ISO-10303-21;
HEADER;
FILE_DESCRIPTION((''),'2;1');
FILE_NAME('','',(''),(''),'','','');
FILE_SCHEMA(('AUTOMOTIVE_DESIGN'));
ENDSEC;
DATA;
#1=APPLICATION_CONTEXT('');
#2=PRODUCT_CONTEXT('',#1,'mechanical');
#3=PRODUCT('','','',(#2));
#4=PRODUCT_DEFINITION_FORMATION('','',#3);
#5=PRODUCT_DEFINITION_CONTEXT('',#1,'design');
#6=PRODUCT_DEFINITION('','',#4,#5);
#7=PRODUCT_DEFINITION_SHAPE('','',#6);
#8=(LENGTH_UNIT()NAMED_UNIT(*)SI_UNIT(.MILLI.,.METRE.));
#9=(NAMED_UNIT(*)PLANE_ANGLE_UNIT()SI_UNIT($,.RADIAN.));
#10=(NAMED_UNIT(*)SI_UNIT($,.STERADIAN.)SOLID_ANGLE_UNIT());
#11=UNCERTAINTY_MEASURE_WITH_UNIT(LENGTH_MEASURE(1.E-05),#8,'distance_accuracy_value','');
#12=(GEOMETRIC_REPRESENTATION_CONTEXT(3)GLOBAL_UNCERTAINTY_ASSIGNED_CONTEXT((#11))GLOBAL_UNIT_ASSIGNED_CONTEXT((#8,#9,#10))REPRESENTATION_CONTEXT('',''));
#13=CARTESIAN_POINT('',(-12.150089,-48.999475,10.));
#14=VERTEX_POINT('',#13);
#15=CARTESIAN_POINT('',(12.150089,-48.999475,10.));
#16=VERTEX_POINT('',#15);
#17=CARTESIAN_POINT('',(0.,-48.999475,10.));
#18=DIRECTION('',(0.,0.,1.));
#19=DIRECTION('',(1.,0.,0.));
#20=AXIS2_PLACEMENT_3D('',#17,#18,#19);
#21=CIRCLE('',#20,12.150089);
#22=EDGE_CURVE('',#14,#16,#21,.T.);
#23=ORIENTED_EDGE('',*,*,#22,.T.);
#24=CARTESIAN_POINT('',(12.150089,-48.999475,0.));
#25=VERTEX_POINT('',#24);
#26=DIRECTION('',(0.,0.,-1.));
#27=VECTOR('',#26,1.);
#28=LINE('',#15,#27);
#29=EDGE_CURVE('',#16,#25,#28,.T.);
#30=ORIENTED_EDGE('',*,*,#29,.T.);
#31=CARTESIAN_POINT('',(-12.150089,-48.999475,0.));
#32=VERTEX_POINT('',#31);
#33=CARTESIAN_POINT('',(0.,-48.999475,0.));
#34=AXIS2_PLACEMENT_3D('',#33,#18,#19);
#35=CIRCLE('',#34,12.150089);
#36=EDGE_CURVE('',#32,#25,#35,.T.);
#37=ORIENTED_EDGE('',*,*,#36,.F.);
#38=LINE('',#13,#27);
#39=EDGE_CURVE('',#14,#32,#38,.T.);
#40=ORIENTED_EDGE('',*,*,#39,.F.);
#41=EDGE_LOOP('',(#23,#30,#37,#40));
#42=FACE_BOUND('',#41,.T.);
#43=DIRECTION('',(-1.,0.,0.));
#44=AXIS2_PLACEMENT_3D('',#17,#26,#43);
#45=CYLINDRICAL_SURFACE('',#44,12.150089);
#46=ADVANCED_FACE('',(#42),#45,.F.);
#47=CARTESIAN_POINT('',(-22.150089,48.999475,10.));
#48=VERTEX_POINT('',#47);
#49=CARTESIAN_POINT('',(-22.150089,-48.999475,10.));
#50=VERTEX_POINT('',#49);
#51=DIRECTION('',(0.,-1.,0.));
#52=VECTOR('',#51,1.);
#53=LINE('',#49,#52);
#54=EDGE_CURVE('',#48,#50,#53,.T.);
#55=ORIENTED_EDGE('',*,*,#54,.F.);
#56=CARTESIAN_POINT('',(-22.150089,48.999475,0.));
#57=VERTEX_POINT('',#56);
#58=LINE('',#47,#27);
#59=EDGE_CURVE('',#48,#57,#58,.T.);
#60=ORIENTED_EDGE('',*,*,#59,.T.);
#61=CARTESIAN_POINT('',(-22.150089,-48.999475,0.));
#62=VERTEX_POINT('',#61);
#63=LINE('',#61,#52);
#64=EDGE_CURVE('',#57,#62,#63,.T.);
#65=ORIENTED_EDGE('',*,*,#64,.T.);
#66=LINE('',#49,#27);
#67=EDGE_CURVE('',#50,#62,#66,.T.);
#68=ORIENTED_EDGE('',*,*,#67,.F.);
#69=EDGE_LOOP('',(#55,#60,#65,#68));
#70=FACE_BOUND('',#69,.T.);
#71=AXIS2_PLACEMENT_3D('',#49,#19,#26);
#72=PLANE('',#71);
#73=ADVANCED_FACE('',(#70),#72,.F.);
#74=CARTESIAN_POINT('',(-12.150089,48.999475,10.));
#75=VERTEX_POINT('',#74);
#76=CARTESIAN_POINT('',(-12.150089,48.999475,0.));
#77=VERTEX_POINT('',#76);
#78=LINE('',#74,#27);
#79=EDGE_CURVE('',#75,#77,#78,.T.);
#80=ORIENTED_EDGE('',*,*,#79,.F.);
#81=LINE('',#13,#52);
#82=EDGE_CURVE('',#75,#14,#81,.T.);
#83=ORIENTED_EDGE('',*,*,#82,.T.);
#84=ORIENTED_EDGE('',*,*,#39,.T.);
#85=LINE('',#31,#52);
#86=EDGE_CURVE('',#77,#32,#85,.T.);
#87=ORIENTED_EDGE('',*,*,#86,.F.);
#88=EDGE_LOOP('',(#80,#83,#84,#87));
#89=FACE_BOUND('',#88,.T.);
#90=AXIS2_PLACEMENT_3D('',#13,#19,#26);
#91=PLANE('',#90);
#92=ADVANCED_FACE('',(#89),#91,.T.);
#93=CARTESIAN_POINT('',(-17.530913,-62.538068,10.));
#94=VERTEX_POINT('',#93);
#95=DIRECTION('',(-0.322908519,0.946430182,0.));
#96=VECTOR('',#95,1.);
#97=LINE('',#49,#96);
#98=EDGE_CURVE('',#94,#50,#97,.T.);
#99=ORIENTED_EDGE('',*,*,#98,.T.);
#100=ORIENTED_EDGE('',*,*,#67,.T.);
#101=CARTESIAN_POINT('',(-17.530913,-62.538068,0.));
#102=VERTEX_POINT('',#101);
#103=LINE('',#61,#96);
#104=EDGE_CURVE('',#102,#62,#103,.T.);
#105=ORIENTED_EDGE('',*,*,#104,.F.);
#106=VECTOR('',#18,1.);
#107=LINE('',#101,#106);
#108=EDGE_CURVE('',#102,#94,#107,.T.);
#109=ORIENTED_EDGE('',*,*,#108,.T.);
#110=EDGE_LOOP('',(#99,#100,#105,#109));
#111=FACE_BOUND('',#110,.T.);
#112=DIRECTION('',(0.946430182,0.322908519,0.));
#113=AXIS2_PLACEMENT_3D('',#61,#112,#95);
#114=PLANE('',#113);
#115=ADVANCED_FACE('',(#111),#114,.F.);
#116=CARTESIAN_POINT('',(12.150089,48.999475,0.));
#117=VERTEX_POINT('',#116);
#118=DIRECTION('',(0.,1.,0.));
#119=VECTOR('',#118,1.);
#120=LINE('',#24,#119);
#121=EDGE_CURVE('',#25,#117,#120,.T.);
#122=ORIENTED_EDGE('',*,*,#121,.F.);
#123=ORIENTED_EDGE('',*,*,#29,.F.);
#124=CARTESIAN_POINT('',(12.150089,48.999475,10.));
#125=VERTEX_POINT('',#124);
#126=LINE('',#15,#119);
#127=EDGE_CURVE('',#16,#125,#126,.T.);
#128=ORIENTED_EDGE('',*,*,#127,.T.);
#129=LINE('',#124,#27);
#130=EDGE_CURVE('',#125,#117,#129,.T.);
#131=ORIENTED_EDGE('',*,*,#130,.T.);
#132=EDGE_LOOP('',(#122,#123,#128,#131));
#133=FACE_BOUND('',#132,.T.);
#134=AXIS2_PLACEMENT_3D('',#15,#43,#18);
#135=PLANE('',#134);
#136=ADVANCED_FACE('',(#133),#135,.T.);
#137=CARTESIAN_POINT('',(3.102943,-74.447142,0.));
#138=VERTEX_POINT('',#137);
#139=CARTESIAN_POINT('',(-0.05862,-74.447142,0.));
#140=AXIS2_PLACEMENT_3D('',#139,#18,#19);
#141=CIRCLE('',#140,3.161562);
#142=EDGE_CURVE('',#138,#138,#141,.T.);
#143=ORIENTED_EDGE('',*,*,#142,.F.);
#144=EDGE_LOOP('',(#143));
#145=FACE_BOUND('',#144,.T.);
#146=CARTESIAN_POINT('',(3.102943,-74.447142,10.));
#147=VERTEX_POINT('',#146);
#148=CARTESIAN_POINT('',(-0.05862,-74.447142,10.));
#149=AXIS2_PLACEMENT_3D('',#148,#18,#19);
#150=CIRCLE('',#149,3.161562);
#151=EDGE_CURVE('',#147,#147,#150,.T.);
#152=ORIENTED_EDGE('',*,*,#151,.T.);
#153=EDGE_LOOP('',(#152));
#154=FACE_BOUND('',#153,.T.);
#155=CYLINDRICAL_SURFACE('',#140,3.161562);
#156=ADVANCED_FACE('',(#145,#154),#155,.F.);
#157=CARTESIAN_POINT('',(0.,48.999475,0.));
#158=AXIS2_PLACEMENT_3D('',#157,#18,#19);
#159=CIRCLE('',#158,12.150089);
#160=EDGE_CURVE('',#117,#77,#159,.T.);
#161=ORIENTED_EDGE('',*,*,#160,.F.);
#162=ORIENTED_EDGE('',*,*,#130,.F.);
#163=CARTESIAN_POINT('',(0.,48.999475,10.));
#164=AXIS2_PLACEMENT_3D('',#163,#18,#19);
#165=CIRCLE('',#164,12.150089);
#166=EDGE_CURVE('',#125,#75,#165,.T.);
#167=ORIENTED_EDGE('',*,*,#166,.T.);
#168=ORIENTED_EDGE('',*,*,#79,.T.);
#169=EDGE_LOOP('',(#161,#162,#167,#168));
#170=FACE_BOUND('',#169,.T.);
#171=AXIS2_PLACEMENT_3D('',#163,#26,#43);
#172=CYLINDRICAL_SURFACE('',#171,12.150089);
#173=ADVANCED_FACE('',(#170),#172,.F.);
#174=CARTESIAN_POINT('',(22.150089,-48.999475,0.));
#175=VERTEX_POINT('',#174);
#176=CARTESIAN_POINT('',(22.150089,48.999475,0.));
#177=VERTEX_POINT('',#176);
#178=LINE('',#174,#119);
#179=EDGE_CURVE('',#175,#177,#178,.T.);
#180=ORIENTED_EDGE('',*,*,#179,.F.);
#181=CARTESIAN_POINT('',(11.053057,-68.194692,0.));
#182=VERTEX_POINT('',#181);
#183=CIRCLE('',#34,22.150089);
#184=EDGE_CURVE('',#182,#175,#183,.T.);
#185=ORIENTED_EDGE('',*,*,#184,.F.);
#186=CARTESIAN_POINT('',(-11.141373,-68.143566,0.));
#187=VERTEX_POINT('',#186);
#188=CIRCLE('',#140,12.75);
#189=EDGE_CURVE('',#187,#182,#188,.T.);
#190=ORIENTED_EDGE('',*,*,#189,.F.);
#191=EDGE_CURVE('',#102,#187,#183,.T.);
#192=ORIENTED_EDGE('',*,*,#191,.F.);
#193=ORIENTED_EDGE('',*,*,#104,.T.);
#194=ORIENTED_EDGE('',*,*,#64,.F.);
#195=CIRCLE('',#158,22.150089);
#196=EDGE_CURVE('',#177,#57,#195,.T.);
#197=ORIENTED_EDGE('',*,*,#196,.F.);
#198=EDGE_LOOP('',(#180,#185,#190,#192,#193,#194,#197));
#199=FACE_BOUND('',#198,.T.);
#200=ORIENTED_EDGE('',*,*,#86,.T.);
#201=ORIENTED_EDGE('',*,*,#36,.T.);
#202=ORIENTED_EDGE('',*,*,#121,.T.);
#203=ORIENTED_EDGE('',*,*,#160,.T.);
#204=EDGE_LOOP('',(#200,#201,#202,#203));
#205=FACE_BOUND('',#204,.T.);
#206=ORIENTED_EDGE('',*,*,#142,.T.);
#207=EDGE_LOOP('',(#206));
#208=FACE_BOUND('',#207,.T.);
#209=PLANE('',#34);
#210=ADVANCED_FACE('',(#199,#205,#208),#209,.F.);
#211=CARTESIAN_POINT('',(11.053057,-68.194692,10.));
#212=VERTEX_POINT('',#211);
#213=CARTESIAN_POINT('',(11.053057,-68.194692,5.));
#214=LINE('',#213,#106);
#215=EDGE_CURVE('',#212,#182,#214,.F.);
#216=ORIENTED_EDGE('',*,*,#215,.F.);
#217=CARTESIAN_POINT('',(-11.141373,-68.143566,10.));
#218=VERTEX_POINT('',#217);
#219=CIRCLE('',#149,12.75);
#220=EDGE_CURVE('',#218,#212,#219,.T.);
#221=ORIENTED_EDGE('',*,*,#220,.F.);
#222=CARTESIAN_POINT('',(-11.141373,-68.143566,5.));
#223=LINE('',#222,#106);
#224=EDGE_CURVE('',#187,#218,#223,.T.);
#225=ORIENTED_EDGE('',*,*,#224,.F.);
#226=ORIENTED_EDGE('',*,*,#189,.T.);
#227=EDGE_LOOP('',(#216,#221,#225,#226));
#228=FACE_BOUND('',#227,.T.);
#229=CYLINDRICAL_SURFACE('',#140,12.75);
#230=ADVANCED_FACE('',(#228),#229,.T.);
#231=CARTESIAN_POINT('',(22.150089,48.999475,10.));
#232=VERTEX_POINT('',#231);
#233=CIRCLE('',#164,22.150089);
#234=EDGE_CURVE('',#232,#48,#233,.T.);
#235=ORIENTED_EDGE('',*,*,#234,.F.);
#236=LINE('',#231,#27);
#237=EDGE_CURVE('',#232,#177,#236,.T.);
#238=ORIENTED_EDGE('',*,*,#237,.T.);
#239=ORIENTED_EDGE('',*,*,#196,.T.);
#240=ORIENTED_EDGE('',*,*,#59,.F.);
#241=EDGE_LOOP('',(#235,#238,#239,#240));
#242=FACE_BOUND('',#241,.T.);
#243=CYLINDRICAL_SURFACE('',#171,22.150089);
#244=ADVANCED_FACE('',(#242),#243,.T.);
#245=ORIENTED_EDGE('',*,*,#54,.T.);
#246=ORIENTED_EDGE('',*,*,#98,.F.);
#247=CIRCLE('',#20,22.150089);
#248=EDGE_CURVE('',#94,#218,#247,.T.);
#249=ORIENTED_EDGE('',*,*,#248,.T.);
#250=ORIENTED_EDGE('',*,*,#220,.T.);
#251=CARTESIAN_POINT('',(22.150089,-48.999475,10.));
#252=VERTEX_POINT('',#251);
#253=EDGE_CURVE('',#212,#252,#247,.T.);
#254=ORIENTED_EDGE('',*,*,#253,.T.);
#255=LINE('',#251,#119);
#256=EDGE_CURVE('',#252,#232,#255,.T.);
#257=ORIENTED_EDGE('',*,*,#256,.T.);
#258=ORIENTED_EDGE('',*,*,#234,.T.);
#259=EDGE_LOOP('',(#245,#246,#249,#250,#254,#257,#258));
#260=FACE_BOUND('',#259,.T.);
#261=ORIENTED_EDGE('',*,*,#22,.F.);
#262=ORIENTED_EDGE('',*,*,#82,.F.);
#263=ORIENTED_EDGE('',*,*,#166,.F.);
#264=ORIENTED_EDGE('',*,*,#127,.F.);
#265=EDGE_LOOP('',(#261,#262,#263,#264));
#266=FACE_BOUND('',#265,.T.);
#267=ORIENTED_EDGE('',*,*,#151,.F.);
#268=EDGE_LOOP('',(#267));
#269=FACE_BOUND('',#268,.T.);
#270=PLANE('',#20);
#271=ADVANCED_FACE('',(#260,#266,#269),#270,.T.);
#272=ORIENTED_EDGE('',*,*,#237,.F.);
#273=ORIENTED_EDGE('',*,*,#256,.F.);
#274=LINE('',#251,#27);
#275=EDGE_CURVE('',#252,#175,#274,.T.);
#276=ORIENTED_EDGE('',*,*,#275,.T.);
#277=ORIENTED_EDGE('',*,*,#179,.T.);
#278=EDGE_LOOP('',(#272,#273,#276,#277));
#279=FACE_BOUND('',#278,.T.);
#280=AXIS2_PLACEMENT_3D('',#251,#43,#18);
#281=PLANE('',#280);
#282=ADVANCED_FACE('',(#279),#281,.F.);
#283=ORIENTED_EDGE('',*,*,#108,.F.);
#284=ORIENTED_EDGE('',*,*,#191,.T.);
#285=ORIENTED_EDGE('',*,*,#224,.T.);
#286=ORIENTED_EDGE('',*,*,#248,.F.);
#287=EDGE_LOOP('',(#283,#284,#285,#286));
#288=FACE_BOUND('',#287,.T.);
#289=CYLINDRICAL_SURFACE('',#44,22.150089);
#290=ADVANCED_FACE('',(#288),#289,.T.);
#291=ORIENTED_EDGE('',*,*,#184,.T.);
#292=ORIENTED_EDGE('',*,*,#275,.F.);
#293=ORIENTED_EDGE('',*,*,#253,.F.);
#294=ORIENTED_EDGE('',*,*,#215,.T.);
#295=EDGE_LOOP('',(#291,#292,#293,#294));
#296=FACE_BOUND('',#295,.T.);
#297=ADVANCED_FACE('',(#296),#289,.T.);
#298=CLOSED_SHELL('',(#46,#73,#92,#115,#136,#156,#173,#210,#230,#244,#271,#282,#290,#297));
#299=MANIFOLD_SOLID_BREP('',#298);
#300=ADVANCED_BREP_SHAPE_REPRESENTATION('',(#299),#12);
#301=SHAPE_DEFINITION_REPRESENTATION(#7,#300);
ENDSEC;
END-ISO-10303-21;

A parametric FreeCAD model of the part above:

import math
import FreeCAD as App
import Part
import Sketcher

V = App.Vector
Q = App.Units.Quantity

doc = App.newDocument("Part")
body = doc.addObject("PartDesign::Body", "Body")

# Sketch on XY plane
sketch1 = body.newObject("Sketcher::SketchObject", "Sketch")
sketch1.AttachmentSupport = (doc.getObject("XY_Plane"), [""])
sketch1.MapMode = "FlatFace"
sketch1.addGeometry([
    Part.LineSegment(V(22, -49, 0), V(22, 49, 0)),  # 0
    Part.ArcOfCircle(Part.Circle(V(0, 49, 0), V(0, 0, 1), 22), math.radians(0), math.radians(180)),  # 1
    Part.LineSegment(V(-22, 49, 0), V(-22, -49, 0)),  # 2
    Part.ArcOfCircle(Part.Circle(V(0, -49, 0), V(0, 0, 1), 22), math.radians(180), math.radians(360)),  # 3
    Part.LineSegment(V(12, 49, 0), V(12, -49, 0)),  # 4
    Part.ArcOfCircle(Part.Circle(V(0, -49, 0), V(0, 0, 1), 12), math.radians(180), math.radians(360)),  # 5
    Part.LineSegment(V(-12, -49, 0), V(-12, 49, 0)),  # 6
    Part.ArcOfCircle(Part.Circle(V(0, 49, 0), V(0, 0, 1), 12), math.radians(0), math.radians(180)),  # 7
], False)
sketch1.addConstraint([
    Sketcher.Constraint("Tangent", 0, 2, 1, 1),
    Sketcher.Constraint("Tangent", 1, 2, 2, 1),
    Sketcher.Constraint("Tangent", 2, 2, 3, 1),
    Sketcher.Constraint("Tangent", 3, 2, 0, 1),
    Sketcher.Constraint("Tangent", 4, 2, 5, 2),
    Sketcher.Constraint("Tangent", 5, 1, 6, 1),
    Sketcher.Constraint("Tangent", 6, 2, 7, 2),
    Sketcher.Constraint("Tangent", 7, 1, 4, 1),
    Sketcher.Constraint("Vertical", 0),
    Sketcher.Constraint("Vertical", 2),
    Sketcher.Constraint("Vertical", 4),
    Sketcher.Constraint("Vertical", 6),
    Sketcher.Constraint("Coincident", 5, 3, 3, 3),
    Sketcher.Constraint("Symmetric", 1, 3, 3, 3, -1, 1),
    Sketcher.Constraint("Horizontal", 7, 3, 0, 2),
    Sketcher.Constraint("DistanceX", 4, 2, 3, 2, Q("10 mm")),
    Sketcher.Constraint("Radius", 1, Q("22.150089 mm")),
    Sketcher.Constraint("DistanceY", 0, 1, 0, 2, Q("97.99895 mm")),
])
pad1 = body.newObject("PartDesign::Pad", "Pad")
pad1.Profile = sketch1
pad1.Length = 10

# Sketch on XY plane
sketch2 = body.newObject("Sketcher::SketchObject", "Sketch001")
sketch2.AttachmentSupport = (doc.getObject("XY_Plane"), [""])
sketch2.MapMode = "FlatFace"
sketch2.AttachmentOffset = App.Placement(V(0, 0, 10), App.Rotation())
sketch2.addGeometry([
    Part.LineSegment(V(-17.5, -62.5, 0), V(-22.2, -49, 0)),
    Part.LineSegment(V(-22.2, -49, 0), V(-24.9, -49, 0)),
    Part.LineSegment(V(-24.9, -49, 0), V(-24.9, -62.5, 0)),
    Part.LineSegment(V(-24.9, -62.5, 0), V(-17.5, -62.5, 0)),
], False)
sketch2.addConstraint([
    Sketcher.Constraint("Coincident", 0, 2, 1, 1),
    Sketcher.Constraint("Coincident", 1, 2, 2, 1),
    Sketcher.Constraint("Coincident", 2, 2, 3, 1),
    Sketcher.Constraint("Coincident", 3, 2, 0, 1),
    Sketcher.Constraint("Horizontal", 1),
    Sketcher.Constraint("Vertical", 2),
    Sketcher.Constraint("Horizontal", 3),
    Sketcher.Constraint("DistanceX", 1, 2, 1, 1, Q("2.725729 mm")),
    Sketcher.Constraint("DistanceX", 3, 1, 3, 2, Q("7.344905 mm")),
    Sketcher.Constraint("DistanceY", 2, 2, 2, 1, Q("13.538593 mm")),
    Sketcher.Constraint("DistanceX", 0, 2, -1, 1, Q("22.150089 mm")),
    Sketcher.Constraint("DistanceY", 2, 2, -1, 1, Q("62.538068 mm")),
])
pocket1 = body.newObject("PartDesign::Pocket", "Pocket")
pocket1.Profile = sketch2
pocket1.Length = 10

# Sketch on XY plane
sketch3 = body.newObject("Sketcher::SketchObject", "Sketch002")
sketch3.AttachmentSupport = (doc.getObject("XY_Plane"), [""])
sketch3.MapMode = "FlatFace"
sketch3.AttachmentOffset = App.Placement(V(0, 0, 10), App.Rotation())
sketch3.addGeometry([
    Part.Circle(V(-0.1, -74.4, 0), V(0, 0, 1), 12.8),
    Part.Circle(V(-0.1, -74.4, 0), V(0, 0, 1), 3.2),
], False)
sketch3.addConstraint([
    Sketcher.Constraint("Coincident", 1, 3, 0, 3),
    Sketcher.Constraint("Diameter", 0, Q("25.5 mm")),
    Sketcher.Constraint("Diameter", 1, Q("6.323124 mm")),
    Sketcher.Constraint("DistanceX", 0, 3, -1, 1, Q("0.05862 mm")),
    Sketcher.Constraint("DistanceY", 0, 3, -1, 1, Q("74.447142 mm")),
])
pad2 = body.newObject("PartDesign::Pad", "Pad001")
pad2.Profile = sketch3
pad2.Length = 10
pad2.Reversed = True

doc.recompute()
